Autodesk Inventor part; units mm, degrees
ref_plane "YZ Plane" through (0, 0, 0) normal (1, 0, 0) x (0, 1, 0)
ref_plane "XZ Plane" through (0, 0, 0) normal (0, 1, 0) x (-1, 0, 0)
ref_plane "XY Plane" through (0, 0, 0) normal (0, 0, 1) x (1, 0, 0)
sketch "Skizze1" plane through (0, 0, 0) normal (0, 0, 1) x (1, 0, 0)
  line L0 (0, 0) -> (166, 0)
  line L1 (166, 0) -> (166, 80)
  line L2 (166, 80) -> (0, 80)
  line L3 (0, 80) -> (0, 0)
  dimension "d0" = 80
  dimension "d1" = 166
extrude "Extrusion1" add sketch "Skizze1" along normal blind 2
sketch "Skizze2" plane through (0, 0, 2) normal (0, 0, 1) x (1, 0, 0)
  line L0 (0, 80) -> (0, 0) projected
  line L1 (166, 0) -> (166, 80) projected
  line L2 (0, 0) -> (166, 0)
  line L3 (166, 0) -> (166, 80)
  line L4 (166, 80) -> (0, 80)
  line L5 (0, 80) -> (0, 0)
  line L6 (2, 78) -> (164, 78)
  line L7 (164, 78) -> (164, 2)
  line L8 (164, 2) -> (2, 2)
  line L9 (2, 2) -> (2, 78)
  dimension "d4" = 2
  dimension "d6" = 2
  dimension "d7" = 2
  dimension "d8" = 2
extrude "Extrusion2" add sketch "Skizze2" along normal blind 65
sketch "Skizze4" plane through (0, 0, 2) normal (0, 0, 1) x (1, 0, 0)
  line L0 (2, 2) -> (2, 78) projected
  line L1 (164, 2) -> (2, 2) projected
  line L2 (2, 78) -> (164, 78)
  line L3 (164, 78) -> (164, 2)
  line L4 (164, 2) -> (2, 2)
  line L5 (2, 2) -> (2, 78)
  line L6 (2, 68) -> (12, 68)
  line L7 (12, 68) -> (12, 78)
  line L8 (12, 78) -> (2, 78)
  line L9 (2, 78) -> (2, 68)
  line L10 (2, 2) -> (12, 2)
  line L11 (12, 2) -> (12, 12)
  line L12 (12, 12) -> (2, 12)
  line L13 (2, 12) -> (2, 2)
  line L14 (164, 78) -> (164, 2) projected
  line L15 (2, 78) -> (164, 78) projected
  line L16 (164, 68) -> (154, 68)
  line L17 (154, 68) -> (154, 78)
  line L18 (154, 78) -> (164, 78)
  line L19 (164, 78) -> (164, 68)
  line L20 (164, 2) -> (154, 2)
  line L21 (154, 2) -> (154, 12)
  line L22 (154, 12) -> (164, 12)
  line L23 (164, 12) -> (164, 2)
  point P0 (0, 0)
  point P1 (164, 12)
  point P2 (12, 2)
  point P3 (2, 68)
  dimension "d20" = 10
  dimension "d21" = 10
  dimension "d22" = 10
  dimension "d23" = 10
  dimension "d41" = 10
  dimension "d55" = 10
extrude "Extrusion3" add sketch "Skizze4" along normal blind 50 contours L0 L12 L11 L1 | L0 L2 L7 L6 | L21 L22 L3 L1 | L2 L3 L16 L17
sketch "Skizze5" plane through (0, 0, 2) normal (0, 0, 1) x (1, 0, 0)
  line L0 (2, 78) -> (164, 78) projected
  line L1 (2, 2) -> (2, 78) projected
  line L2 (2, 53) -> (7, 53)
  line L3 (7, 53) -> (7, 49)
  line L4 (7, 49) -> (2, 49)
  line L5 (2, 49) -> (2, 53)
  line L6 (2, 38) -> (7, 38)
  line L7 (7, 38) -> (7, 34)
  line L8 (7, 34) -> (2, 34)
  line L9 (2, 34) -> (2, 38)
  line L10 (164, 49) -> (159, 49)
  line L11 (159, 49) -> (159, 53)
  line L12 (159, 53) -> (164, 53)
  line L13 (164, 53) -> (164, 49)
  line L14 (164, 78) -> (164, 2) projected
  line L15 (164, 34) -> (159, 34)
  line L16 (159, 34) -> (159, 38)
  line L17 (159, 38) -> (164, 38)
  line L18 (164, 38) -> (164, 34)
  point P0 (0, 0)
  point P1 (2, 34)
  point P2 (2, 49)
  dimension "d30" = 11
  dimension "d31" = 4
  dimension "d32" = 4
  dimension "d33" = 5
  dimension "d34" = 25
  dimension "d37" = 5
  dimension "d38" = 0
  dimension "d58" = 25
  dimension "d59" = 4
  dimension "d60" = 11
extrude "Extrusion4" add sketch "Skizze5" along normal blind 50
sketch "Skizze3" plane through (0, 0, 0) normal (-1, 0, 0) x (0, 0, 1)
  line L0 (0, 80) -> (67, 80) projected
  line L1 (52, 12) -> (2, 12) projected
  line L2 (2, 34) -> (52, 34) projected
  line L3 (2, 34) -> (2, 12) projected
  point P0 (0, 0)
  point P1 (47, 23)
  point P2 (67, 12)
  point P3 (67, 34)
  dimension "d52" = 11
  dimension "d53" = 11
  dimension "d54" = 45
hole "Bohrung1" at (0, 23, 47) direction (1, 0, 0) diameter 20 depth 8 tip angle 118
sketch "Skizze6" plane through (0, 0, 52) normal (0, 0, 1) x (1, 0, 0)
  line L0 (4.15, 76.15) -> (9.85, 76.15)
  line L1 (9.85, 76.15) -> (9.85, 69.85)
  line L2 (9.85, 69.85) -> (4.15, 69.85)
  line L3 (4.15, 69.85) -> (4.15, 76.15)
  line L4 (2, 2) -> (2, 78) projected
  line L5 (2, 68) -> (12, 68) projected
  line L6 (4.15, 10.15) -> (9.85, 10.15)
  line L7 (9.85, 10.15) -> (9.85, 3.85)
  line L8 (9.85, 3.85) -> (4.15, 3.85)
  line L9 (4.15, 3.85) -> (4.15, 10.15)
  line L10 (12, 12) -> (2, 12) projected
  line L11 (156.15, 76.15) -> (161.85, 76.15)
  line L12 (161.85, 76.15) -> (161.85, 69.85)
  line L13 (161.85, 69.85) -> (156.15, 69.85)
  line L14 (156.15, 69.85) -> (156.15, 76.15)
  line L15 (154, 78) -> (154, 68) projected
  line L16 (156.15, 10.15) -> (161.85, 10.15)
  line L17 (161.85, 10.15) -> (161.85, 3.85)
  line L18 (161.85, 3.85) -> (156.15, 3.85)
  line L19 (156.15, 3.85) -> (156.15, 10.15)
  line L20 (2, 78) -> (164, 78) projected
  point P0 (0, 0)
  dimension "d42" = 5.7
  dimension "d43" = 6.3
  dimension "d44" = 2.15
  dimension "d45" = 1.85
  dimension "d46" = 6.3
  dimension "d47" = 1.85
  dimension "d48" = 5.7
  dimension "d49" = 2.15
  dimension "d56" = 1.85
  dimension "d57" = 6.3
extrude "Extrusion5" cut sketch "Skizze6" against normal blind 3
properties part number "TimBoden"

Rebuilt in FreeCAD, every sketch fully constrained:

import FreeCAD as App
import Part
import Sketcher
from FreeCAD import Vector


def add_polygon(sketch, points):
    """Adds a closed chain of lines whose ends are joined by coincident constraints."""
    first, n = sketch.GeometryCount, len(points)
    for a, b in zip(points, points[1:] + points[:1]):
        sketch.addGeometry(Part.LineSegment(App.Vector(*a, 0), App.Vector(*b, 0)), False)
    for i in range(n):
        sketch.addConstraint(Sketcher.Constraint("Coincident", first + i, 2, first + (i + 1) % n, 1))

doc = App.newDocument("Part")
body = doc.addObject("PartDesign::Body", "Body")

# Sketch on XY plane
sketch1 = body.newObject("Sketcher::SketchObject", "Sketch")
sketch1.AttachmentSupport = (doc.getObject("XY_Plane"), [""])
sketch1.MapMode = "FlatFace"
add_polygon(sketch1, [(0, 80), (0, 0), (166, 0), (166, 80)])  # lines 0-3
sketch1.addConstraint(Sketcher.Constraint("Vertical", 0))
sketch1.addConstraint(Sketcher.Constraint("Horizontal", 1))
sketch1.addConstraint(Sketcher.Constraint("Vertical", 2))
sketch1.addConstraint(Sketcher.Constraint("Horizontal", 3))
sketch1.addConstraint(Sketcher.Constraint("Coincident", 0, 2, -1, 1))
sketch1.addConstraint(Sketcher.Constraint("DistanceX", 1, 1, 1, 2, 166.0))
sketch1.addConstraint(Sketcher.Constraint("DistanceY", 0, 2, 0, 1, 80.0))
pad1 = body.newObject("PartDesign::Pad", "Pad")
pad1.Profile = sketch1
pad1.Length = 2

# Sketch on XY plane
sketch2 = body.newObject("Sketcher::SketchObject", "Sketch001")
sketch2.AttachmentSupport = (doc.getObject("XY_Plane"), [""])
sketch2.MapMode = "FlatFace"
sketch2.AttachmentOffset = App.Placement(Vector(0, 0, 2), App.Rotation())
add_polygon(sketch2, [(166, 80), (0, 80), (0, 0), (166, 0)])  # lines 0-3
add_polygon(sketch2, [(2, 2), (2, 78), (164, 78), (164, 2)])  # lines 4-7
sketch2.addConstraint(Sketcher.Constraint("Horizontal", 0))
sketch2.addConstraint(Sketcher.Constraint("Vertical", 1))
sketch2.addConstraint(Sketcher.Constraint("Horizontal", 2))
sketch2.addConstraint(Sketcher.Constraint("Vertical", 3))
sketch2.addConstraint(Sketcher.Constraint("Vertical", 4))
sketch2.addConstraint(Sketcher.Constraint("Horizontal", 5))
sketch2.addConstraint(Sketcher.Constraint("Vertical", 6))
sketch2.addConstraint(Sketcher.Constraint("Horizontal", 7))
sketch2.addConstraint(Sketcher.Constraint("Coincident", 1, 2, -1, 1))
sketch2.addConstraint(Sketcher.Constraint("DistanceX", -1, 1, 4, 2, 2.0))
sketch2.addConstraint(Sketcher.Constraint("DistanceY", -1, 1, 6, 2, 2.0))
sketch2.addConstraint(Sketcher.Constraint("DistanceY", 4, 2, 0, 2, 2.0))
sketch2.addConstraint(Sketcher.Constraint("DistanceX", 5, 2, 3, 2, 2.0))
sketch2.addConstraint(Sketcher.Constraint("DistanceX", 0, 2, 0, 1, 166.0))
sketch2.addConstraint(Sketcher.Constraint("DistanceY", 1, 2, 1, 1, 80.0))
pad2 = body.newObject("PartDesign::Pad", "Pad001")
pad2.Profile = sketch2
pad2.Length = 65

# Sketch on XY plane
sketch3 = body.newObject("Sketcher::SketchObject", "Sketch002")
sketch3.AttachmentSupport = (doc.getObject("XY_Plane"), [""])
sketch3.MapMode = "FlatFace"
sketch3.AttachmentOffset = App.Placement(Vector(0, 0, 2), App.Rotation())
add_polygon(sketch3, [(2, 12), (2, 2), (12, 2), (12, 12)])  # lines 0-3
add_polygon(sketch3, [(2, 78), (2, 68), (12, 68), (12, 78)])  # lines 4-7
add_polygon(sketch3, [(154, 12), (154, 2), (164, 2), (164, 12)])  # lines 8-11
add_polygon(sketch3, [(164, 78), (154, 78), (154, 68), (164, 68)])  # lines 12-15
sketch3.addConstraint(Sketcher.Constraint("Vertical", 0))
sketch3.addConstraint(Sketcher.Constraint("Horizontal", 1))
sketch3.addConstraint(Sketcher.Constraint("Vertical", 2))
sketch3.addConstraint(Sketcher.Constraint("Horizontal", 3))
sketch3.addConstraint(Sketcher.Constraint("Vertical", 4))
sketch3.addConstraint(Sketcher.Constraint("Horizontal", 5))
sketch3.addConstraint(Sketcher.Constraint("Vertical", 6))
sketch3.addConstraint(Sketcher.Constraint("Horizontal", 7))
sketch3.addConstraint(Sketcher.Constraint("Vertical", 8))
sketch3.addConstraint(Sketcher.Constraint("Horizontal", 9))
sketch3.addConstraint(Sketcher.Constraint("Vertical", 10))
sketch3.addConstraint(Sketcher.Constraint("Horizontal", 11))
sketch3.addConstraint(Sketcher.Constraint("Horizontal", 12))
sketch3.addConstraint(Sketcher.Constraint("Vertical", 13))
sketch3.addConstraint(Sketcher.Constraint("Horizontal", 14))
sketch3.addConstraint(Sketcher.Constraint("Vertical", 15))
sketch3.addConstraint(Sketcher.Constraint("Horizontal", 1, 2, 8, 2))
sketch3.addConstraint(Sketcher.Constraint("Horizontal", 3, 2, 10, 2))
sketch3.addConstraint(Sketcher.Constraint("Horizontal", 7, 2, 12, 2))
sketch3.addConstraint(Sketcher.Constraint("Horizontal", 5, 2, 13, 2))
sketch3.addConstraint(Sketcher.Constraint("Vertical", 3, 2, 4, 2))
sketch3.addConstraint(Sketcher.Constraint("Vertical", 2, 2, 5, 2))
sketch3.addConstraint(Sketcher.Constraint("Vertical", 11, 2, 12, 2))
sketch3.addConstraint(Sketcher.Constraint("Vertical", 10, 2, 14, 2))
sketch3.addConstraint(Sketcher.Constraint("Equal", 7, 9))
sketch3.addConstraint(Sketcher.Constraint("Equal", 14, 0))
sketch3.addConstraint(Sketcher.Constraint("Equal", 2, 4))
sketch3.addConstraint(Sketcher.Constraint("DistanceX", 1, 1, 1, 2, 10.0))
sketch3.addConstraint(Sketcher.Constraint("DistanceX", -1, 1, 0, 2, 2.0))
sketch3.addConstraint(Sketcher.Constraint("DistanceY", -1, 1, 0, 2, 2.0))
sketch3.addConstraint(Sketcher.Constraint("DistanceY", -1, 1, 4, 2, 68.0))
sketch3.addConstraint(Sketcher.Constraint("DistanceX", -1, 1, 8, 2, 154.0))
pad3 = body.newObject("PartDesign::Pad", "Pad002")
pad3.Profile = sketch3
pad3.Length = 50

# Sketch on XY plane
sketch4 = body.newObject("Sketcher::SketchObject", "Sketch003")
sketch4.AttachmentSupport = (doc.getObject("XY_Plane"), [""])
sketch4.MapMode = "FlatFace"
sketch4.AttachmentOffset = App.Placement(Vector(0, 0, 2), App.Rotation())
add_polygon(sketch4, [(164, 34), (164, 38), (159, 38), (159, 34)])  # lines 0-3
add_polygon(sketch4, [(164, 49), (164, 53), (159, 53), (159, 49)])  # lines 4-7
add_polygon(sketch4, [(7, 38), (2, 38), (2, 34), (7, 34)])  # lines 8-11
add_polygon(sketch4, [(7, 53), (2, 53), (2, 49), (7, 49)])  # lines 12-15
sketch4.addConstraint(Sketcher.Constraint("Vertical", 0))
sketch4.addConstraint(Sketcher.Constraint("Horizontal", 1))
sketch4.addConstraint(Sketcher.Constraint("Vertical", 2))
sketch4.addConstraint(Sketcher.Constraint("Horizontal", 3))
sketch4.addConstraint(Sketcher.Constraint("Vertical", 4))
sketch4.addConstraint(Sketcher.Constraint("Horizontal", 5))
sketch4.addConstraint(Sketcher.Constraint("Vertical", 6))
sketch4.addConstraint(Sketcher.Constraint("Horizontal", 7))
sketch4.addConstraint(Sketcher.Constraint("Horizontal", 8))
sketch4.addConstraint(Sketcher.Constraint("Vertical", 9))
sketch4.addConstraint(Sketcher.Constraint("Horizontal", 10))
sketch4.addConstraint(Sketcher.Constraint("Vertical", 11))
sketch4.addConstraint(Sketcher.Constraint("Horizontal", 12))
sketch4.addConstraint(Sketcher.Constraint("Vertical", 13))
sketch4.addConstraint(Sketcher.Constraint("Horizontal", 14))
sketch4.addConstraint(Sketcher.Constraint("Vertical", 15))
sketch4.addConstraint(Sketcher.Constraint("Horizontal", 1, 2, 8, 2))
sketch4.addConstraint(Sketcher.Constraint("Horizontal", 3, 2, 9, 2))
sketch4.addConstraint(Sketcher.Constraint("Horizontal", 5, 2, 12, 2))
sketch4.addConstraint(Sketcher.Constraint("Horizontal", 7, 2, 13, 2))
sketch4.addConstraint(Sketcher.Constraint("Vertical", 3, 2, 4, 2))
sketch4.addConstraint(Sketcher.Constraint("Vertical", 2, 2, 5, 2))
sketch4.addConstraint(Sketcher.Constraint("Vertical", 9, 2, 12, 2))
sketch4.addConstraint(Sketcher.Constraint("Vertical", 11, 2, 14, 2))
sketch4.addConstraint(Sketcher.Constraint("Equal", 7, 8))
sketch4.addConstraint(Sketcher.Constraint("Equal", 2, 4))
sketch4.addConstraint(Sketcher.Constraint("DistanceX", 1, 2, 1, 1, 5.0))
sketch4.addConstraint(Sketcher.Constraint("DistanceY", 0, 1, 0, 2, 4.0))
sketch4.addConstraint(Sketcher.Constraint("DistanceY", 1, 2, 6, 2, 11.0))
sketch4.addConstraint(Sketcher.Constraint("DistanceX", -1, 1, 0, 2, 164.0))
sketch4.addConstraint(Sketcher.Constraint("DistanceY", -1, 1, 0, 2, 38.0))
sketch4.addConstraint(Sketcher.Constraint("DistanceX", -1, 1, 8, 2, 2.0))
pad4 = body.newObject("PartDesign::Pad", "Pad003")
pad4.Profile = sketch4
pad4.Length = 50

# Sketch on YZ plane
sketch5 = body.newObject("Sketcher::SketchObject", "Sketch004")
sketch5.AttachmentSupport = (doc.getObject("YZ_Plane"), [""])
sketch5.MapMode = "FlatFace"
sketch5.addGeometry(Part.Circle(Vector(23, 47, 0), Vector(0, 0, 1), 10), False)
sketch5.addConstraint(Sketcher.Constraint("Diameter", 0, 20.0))
sketch5.addConstraint(Sketcher.Constraint("DistanceX", -1, 1, 0, 3, 23.0))
sketch5.addConstraint(Sketcher.Constraint("DistanceY", -1, 1, 0, 3, 47.0))
doc.recompute()
hole = body.newObject("PartDesign::Hole", "Hole")
hole.Profile = sketch5
hole.ThreadType = "None"
hole.Diameter = 20
hole.DepthType = "Dimension"
hole.Depth = 8
hole.DrillPoint = "Angled"
hole.DrillPointAngle = 118
hole.Reversed = True

# Sketch on XY plane
sketch6 = body.newObject("Sketcher::SketchObject", "Sketch005")
sketch6.AttachmentSupport = (doc.getObject("XY_Plane"), [""])
sketch6.MapMode = "FlatFace"
sketch6.AttachmentOffset = App.Placement(Vector(0, 0, 52), App.Rotation())
add_polygon(sketch6, [(10, 76), (4, 76), (4, 70), (10, 70)])  # lines 0-3
add_polygon(sketch6, [(10, 10), (4, 10), (4, 4), (10, 4)])  # lines 4-7
add_polygon(sketch6, [(162, 76), (156, 76), (156, 70), (162, 70)])  # lines 8-11
add_polygon(sketch6, [(162, 10), (156, 10), (156, 4), (162, 4)])  # lines 12-15
sketch6.addConstraint(Sketcher.Constraint("Horizontal", 0))
sketch6.addConstraint(Sketcher.Constraint("Vertical", 1))
sketch6.addConstraint(Sketcher.Constraint("Horizontal", 2))
sketch6.addConstraint(Sketcher.Constraint("Vertical", 3))
sketch6.addConstraint(Sketcher.Constraint("Horizontal", 4))
sketch6.addConstraint(Sketcher.Constraint("Vertical", 5))
sketch6.addConstraint(Sketcher.Constraint("Horizontal", 6))
sketch6.addConstraint(Sketcher.Constraint("Vertical", 7))
sketch6.addConstraint(Sketcher.Constraint("Horizontal", 8))
sketch6.addConstraint(Sketcher.Constraint("Vertical", 9))
sketch6.addConstraint(Sketcher.Constraint("Horizontal", 10))
sketch6.addConstraint(Sketcher.Constraint("Vertical", 11))
sketch6.addConstraint(Sketcher.Constraint("Horizontal", 12))
sketch6.addConstraint(Sketcher.Constraint("Vertical", 13))
sketch6.addConstraint(Sketcher.Constraint("Horizontal", 14))
sketch6.addConstraint(Sketcher.Constraint("Vertical", 15))
sketch6.addConstraint(Sketcher.Constraint("Horizontal", 3, 2, 8, 2))
sketch6.addConstraint(Sketcher.Constraint("Horizontal", 2, 2, 9, 2))
sketch6.addConstraint(Sketcher.Constraint("Horizontal", 7, 2, 12, 2))
sketch6.addConstraint(Sketcher.Constraint("Horizontal", 6, 2, 13, 2))
sketch6.addConstraint(Sketcher.Constraint("Vertical", 1, 2, 4, 2))
sketch6.addConstraint(Sketcher.Constraint("Vertical", 3, 2, 6, 2))
sketch6.addConstraint(Sketcher.Constraint("Vertical", 9, 2, 12, 2))
sketch6.addConstraint(Sketcher.Constraint("Vertical", 11, 2, 14, 2))
sketch6.addConstraint(Sketcher.Constraint("Equal", 6, 8))
sketch6.addConstraint(Sketcher.Constraint("Equal", 3, 5))
sketch6.addConstraint(Sketcher.Constraint("DistanceX", 0, 2, 0, 1, 5.7))
sketch6.addConstraint(Sketcher.Constraint("DistanceY", 1, 2, 1, 1, 6.3))
sketch6.addConstraint(Sketcher.Constraint("DistanceY", 4, 2, 0, 2, 66.0))
sketch6.addConstraint(Sketcher.Constraint("DistanceX", 0, 2, 8, 2, 152.0))
sketch6.addConstraint(Sketcher.Constraint("DistanceX", -1, 1, 0, 2, 4.15))
sketch6.addConstraint(Sketcher.Constraint("DistanceY", -1, 1, 0, 2, 76.15))
pocket1 = body.newObject("PartDesign::Pocket", "Pocket")
pocket1.Profile = sketch6
pocket1.Length = 3

doc.recompute()
